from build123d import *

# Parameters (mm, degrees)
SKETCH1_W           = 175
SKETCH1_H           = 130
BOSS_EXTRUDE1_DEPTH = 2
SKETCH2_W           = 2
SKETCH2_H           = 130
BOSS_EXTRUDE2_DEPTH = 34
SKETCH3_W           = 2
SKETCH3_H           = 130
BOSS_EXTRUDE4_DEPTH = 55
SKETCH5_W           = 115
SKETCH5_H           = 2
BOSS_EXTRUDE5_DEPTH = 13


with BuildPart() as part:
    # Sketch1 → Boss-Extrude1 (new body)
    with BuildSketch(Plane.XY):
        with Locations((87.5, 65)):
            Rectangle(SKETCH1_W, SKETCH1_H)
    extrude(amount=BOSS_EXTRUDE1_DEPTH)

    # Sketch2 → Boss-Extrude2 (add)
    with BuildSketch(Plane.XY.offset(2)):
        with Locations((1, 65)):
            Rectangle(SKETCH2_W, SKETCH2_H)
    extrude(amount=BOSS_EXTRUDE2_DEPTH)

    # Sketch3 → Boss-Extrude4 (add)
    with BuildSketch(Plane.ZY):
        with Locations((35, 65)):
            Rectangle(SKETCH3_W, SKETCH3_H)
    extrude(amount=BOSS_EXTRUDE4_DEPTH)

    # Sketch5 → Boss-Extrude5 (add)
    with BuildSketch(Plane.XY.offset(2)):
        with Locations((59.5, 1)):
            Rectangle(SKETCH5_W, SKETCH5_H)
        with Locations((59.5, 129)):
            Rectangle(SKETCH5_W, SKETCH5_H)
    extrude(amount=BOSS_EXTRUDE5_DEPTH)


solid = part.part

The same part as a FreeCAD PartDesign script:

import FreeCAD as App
import Part
import Sketcher
from FreeCAD import Vector
Q = App.Units.Quantity

doc = App.newDocument("Part")
body = doc.addObject("PartDesign::Body", "Body")

# Sketch on XY plane
sketch1 = body.newObject("Sketcher::SketchObject", "Sketch")
sketch1.AttachmentSupport = (doc.getObject("XY_Plane"), [""])
sketch1.MapMode = "FlatFace"
sketch1.addGeometry([
    Part.LineSegment(Vector(0, 130, 0), Vector(0, 0, 0)),
    Part.LineSegment(Vector(0, 0, 0), Vector(175, 0, 0)),
    Part.LineSegment(Vector(175, 0, 0), Vector(175, 130, 0)),
    Part.LineSegment(Vector(175, 130, 0), Vector(0, 130, 0)),
], False)
sketch1.addConstraint([
    Sketcher.Constraint("Coincident", 0, 2, 1, 1),
    Sketcher.Constraint("Coincident", 1, 2, 2, 1),
    Sketcher.Constraint("Coincident", 2, 2, 3, 1),
    Sketcher.Constraint("Coincident", 3, 2, 0, 1),
    Sketcher.Constraint("Vertical", 0),
    Sketcher.Constraint("Horizontal", 1),
    Sketcher.Constraint("Vertical", 2),
    Sketcher.Constraint("Horizontal", 3),
    Sketcher.Constraint("Coincident", 0, 2, -1, 1),
    Sketcher.Constraint("DistanceX", 1, 1, 1, 2, Q("175 mm")),
    Sketcher.Constraint("DistanceY", 0, 2, 0, 1, Q("130 mm")),
])
pad1 = body.newObject("PartDesign::Pad", "Pad")
pad1.Profile = sketch1
pad1.Length = 2

# Sketch on XY plane
sketch2 = body.newObject("Sketcher::SketchObject", "Sketch001")
sketch2.AttachmentSupport = (doc.getObject("XY_Plane"), [""])
sketch2.MapMode = "FlatFace"
sketch2.AttachmentOffset = App.Placement(Vector(0, 0, 2), App.Rotation())
sketch2.addGeometry([
    Part.LineSegment(Vector(0, 130, 0), Vector(0, 0, 0)),
    Part.LineSegment(Vector(0, 0, 0), Vector(2, 0, 0)),
    Part.LineSegment(Vector(2, 0, 0), Vector(2, 130, 0)),
    Part.LineSegment(Vector(2, 130, 0), Vector(0, 130, 0)),
], False)
sketch2.addConstraint([
    Sketcher.Constraint("Coincident", 0, 2, 1, 1),
    Sketcher.Constraint("Coincident", 1, 2, 2, 1),
    Sketcher.Constraint("Coincident", 2, 2, 3, 1),
    Sketcher.Constraint("Coincident", 3, 2, 0, 1),
    Sketcher.Constraint("Vertical", 0),
    Sketcher.Constraint("Horizontal", 1),
    Sketcher.Constraint("Vertical", 2),
    Sketcher.Constraint("Horizontal", 3),
    Sketcher.Constraint("Coincident", 0, 2, -1, 1),
    Sketcher.Constraint("DistanceX", 1, 1, 1, 2, Q("2 mm")),
    Sketcher.Constraint("DistanceY", 0, 2, 0, 1, Q("130 mm")),
])
pad2 = body.newObject("PartDesign::Pad", "Pad001")
pad2.Profile = sketch2
pad2.Length = 34

# Sketch on YZ plane
sketch3 = body.newObject("Sketcher::SketchObject", "Sketch002")
sketch3.AttachmentSupport = (doc.getObject("YZ_Plane"), [""])
sketch3.MapMode = "FlatFace"
sketch3.addGeometry([
    Part.LineSegment(Vector(130, 34, 0), Vector(0, 34, 0)),
    Part.LineSegment(Vector(0, 34, 0), Vector(0, 36, 0)),
    Part.LineSegment(Vector(0, 36, 0), Vector(130, 36, 0)),
    Part.LineSegment(Vector(130, 36, 0), Vector(130, 34, 0)),
], False)
sketch3.addConstraint([
    Sketcher.Constraint("Coincident", 0, 2, 1, 1),
    Sketcher.Constraint("Coincident", 1, 2, 2, 1),
    Sketcher.Constraint("Coincident", 2, 2, 3, 1),
    Sketcher.Constraint("Coincident", 3, 2, 0, 1),
    Sketcher.Constraint("Horizontal", 0),
    Sketcher.Constraint("Vertical", 1),
    Sketcher.Constraint("Horizontal", 2),
    Sketcher.Constraint("Vertical", 3),
    Sketcher.Constraint("PointOnObject", 0, 2, -2),
    Sketcher.Constraint("DistanceX", 0, 2, 0, 1, Q("130 mm")),
    Sketcher.Constraint("DistanceY", 1, 1, 1, 2, Q("2 mm")),
    Sketcher.Constraint("DistanceY", -1, 1, 0, 2, Q("34 mm")),
])
pad3 = body.newObject("PartDesign::Pad", "Pad002")
pad3.Profile = sketch3
pad3.Length = 55
pad3.Reversed = True

# Sketch on XY plane
sketch4 = body.newObject("Sketcher::SketchObject", "Sketch003")
sketch4.AttachmentSupport = (doc.getObject("XY_Plane"), [""])
sketch4.MapMode = "FlatFace"
sketch4.AttachmentOffset = App.Placement(Vector(0, 0, 2), App.Rotation())
sketch4.addGeometry([
    Part.LineSegment(Vector(2, 2, 0), Vector(2, 0, 0)),  # 0
    Part.LineSegment(Vector(2, 0, 0), Vector(117, 0, 0)),  # 1
    Part.LineSegment(Vector(117, 0, 0), Vector(117, 2, 0)),  # 2
    Part.LineSegment(Vector(117, 2, 0), Vector(2, 2, 0)),  # 3
    Part.LineSegment(Vector(2, 130, 0), Vector(2, 128, 0)),  # 4
    Part.LineSegment(Vector(2, 128, 0), Vector(117, 128, 0)),  # 5
    Part.LineSegment(Vector(117, 128, 0), Vector(117, 130, 0)),  # 6
    Part.LineSegment(Vector(117, 130, 0), Vector(2, 130, 0)),  # 7
], False)
sketch4.addConstraint([
    Sketcher.Constraint("Coincident", 0, 2, 1, 1),
    Sketcher.Constraint("Coincident", 1, 2, 2, 1),
    Sketcher.Constraint("Coincident", 2, 2, 3, 1),
    Sketcher.Constraint("Coincident", 3, 2, 0, 1),
    Sketcher.Constraint("Coincident", 4, 2, 5, 1),
    Sketcher.Constraint("Coincident", 5, 2, 6, 1),
    Sketcher.Constraint("Coincident", 6, 2, 7, 1),
    Sketcher.Constraint("Coincident", 7, 2, 4, 1),
    Sketcher.Constraint("Vertical", 0),
    Sketcher.Constraint("Horizontal", 1),
    Sketcher.Constraint("Vertical", 2),
    Sketcher.Constraint("Horizontal", 3),
    Sketcher.Constraint("Vertical", 4),
    Sketcher.Constraint("Horizontal", 5),
    Sketcher.Constraint("Vertical", 6),
    Sketcher.Constraint("Horizontal", 7),
    Sketcher.Constraint("PointOnObject", 0, 2, -1),
    Sketcher.Constraint("Vertical", 3, 2, 4, 2),
    Sketcher.Constraint("Vertical", 2, 2, 5, 2),
    Sketcher.Constraint("Equal", 2, 4),
    Sketcher.Constraint("DistanceX", 1, 1, 1, 2, Q("115 mm")),
    Sketcher.Constraint("DistanceY", 0, 2, 0, 1, Q("2 mm")),
    Sketcher.Constraint("DistanceX", -1, 1, 0, 2, Q("2 mm")),
    Sketcher.Constraint("DistanceY", -1, 1, 4, 2, Q("128 mm")),
])
pad4 = body.newObject("PartDesign::Pad", "Pad003")
pad4.Profile = sketch4
pad4.Length = 13

doc.recompute()
